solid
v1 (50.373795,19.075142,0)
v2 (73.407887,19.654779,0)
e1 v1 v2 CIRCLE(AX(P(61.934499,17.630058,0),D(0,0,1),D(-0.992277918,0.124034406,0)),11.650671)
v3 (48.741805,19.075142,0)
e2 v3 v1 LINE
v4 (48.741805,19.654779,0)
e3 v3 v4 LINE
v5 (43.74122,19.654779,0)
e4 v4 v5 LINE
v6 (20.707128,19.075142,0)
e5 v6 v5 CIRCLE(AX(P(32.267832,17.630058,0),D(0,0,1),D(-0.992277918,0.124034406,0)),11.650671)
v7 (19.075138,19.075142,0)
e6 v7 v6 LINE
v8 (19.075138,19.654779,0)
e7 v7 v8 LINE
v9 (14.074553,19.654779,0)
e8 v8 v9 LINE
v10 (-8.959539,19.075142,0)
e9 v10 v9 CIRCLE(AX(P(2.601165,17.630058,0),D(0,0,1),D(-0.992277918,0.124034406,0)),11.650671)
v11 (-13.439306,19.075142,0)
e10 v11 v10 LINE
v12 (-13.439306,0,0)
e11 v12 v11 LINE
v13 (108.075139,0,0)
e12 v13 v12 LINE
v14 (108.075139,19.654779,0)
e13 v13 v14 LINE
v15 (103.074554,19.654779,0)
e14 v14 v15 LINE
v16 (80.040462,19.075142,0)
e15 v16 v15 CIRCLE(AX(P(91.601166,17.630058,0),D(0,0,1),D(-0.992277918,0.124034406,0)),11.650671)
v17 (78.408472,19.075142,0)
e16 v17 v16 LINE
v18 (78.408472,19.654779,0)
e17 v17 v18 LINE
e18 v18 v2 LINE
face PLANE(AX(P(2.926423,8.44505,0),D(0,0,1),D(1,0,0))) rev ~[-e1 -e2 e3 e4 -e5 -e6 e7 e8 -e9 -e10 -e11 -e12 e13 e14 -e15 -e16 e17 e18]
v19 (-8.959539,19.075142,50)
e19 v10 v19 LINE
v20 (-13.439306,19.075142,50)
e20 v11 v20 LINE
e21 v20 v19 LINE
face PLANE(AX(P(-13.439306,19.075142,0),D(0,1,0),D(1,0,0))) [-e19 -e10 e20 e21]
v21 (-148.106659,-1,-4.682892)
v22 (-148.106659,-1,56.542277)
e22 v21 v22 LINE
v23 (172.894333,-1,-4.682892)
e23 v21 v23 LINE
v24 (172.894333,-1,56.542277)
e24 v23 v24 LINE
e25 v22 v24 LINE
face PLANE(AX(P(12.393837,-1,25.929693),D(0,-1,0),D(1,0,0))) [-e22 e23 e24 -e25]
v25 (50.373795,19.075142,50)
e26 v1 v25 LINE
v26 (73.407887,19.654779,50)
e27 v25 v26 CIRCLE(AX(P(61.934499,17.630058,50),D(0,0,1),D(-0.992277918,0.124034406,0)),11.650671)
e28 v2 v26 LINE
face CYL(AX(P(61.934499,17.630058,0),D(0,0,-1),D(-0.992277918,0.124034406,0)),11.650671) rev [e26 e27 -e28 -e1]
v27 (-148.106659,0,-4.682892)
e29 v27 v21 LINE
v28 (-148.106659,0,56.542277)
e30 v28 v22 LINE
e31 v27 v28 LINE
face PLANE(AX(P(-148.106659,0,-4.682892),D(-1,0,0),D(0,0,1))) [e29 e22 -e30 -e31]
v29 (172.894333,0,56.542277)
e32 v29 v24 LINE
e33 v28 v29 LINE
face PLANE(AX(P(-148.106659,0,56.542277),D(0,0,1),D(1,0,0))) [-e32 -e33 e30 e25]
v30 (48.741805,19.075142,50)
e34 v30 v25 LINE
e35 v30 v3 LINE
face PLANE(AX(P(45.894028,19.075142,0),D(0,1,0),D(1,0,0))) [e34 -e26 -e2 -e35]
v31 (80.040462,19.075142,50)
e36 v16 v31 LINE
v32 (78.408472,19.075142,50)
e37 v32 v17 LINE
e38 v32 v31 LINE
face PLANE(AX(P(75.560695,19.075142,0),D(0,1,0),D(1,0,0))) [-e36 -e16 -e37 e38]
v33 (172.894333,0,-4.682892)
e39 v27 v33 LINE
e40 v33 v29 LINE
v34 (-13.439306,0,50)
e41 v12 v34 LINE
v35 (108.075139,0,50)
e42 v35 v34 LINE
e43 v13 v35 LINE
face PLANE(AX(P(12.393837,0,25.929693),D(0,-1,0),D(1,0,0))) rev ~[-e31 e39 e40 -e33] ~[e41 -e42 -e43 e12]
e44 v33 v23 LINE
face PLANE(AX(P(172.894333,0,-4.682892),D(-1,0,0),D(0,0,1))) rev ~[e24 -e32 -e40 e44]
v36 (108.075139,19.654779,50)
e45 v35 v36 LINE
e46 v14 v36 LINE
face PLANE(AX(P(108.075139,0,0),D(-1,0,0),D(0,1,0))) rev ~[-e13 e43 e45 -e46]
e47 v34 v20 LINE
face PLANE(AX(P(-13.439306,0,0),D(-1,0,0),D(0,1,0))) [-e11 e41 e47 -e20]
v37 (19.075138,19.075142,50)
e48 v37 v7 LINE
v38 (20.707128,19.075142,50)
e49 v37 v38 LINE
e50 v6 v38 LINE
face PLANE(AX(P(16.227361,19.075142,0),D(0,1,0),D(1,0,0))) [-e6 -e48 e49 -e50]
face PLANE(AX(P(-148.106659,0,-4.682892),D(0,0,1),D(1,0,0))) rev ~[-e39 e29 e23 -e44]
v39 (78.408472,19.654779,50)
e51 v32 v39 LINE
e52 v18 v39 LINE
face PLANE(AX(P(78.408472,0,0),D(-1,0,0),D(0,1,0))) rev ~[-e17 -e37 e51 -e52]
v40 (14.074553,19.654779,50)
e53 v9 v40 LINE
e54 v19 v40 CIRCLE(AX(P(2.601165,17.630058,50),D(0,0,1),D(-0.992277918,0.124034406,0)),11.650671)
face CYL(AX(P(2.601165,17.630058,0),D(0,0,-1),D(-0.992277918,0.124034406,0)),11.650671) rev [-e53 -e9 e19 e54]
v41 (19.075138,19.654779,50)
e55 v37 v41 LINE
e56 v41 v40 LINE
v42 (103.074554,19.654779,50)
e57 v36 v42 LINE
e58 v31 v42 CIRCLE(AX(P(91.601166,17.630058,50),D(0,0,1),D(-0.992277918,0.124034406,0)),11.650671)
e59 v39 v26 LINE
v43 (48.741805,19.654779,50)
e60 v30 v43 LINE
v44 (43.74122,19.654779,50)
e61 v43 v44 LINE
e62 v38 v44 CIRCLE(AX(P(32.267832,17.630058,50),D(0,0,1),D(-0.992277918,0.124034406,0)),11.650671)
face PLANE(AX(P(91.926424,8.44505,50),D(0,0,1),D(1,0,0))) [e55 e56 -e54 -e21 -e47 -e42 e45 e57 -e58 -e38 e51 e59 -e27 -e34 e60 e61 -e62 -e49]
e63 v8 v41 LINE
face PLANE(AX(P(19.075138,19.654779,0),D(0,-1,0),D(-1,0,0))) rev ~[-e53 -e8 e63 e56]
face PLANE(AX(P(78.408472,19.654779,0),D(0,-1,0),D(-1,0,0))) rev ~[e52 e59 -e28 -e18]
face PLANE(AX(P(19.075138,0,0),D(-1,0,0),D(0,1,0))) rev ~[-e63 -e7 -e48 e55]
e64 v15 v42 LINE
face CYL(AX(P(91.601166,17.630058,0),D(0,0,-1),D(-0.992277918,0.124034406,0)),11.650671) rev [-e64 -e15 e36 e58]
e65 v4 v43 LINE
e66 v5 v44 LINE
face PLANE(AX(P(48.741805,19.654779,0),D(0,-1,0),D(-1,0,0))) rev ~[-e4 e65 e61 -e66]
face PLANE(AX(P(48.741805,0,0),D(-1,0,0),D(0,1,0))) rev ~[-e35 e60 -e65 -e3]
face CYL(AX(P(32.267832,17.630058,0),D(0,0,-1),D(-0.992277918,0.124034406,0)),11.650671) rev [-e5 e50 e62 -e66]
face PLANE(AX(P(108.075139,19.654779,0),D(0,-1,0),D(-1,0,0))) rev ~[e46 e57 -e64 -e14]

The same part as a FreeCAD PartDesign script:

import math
import FreeCAD as App
import Part
import Sketcher
Q = App.Units.Quantity

doc = App.newDocument("Part")
body = doc.addObject("PartDesign::Body", "Body")

# Sketch on XZ plane
sketch1 = body.newObject("Sketcher::SketchObject", "Sketch")
sketch1.AttachmentSupport = (doc.getObject("XZ_Plane"), [""])
sketch1.MapMode = "FlatFace"
sketch1.addGeometry([
    Part.LineSegment(App.Vector(-148.106659, 56.542277, 0), App.Vector(-148.106659, -4.682892, 0)),
    Part.LineSegment(App.Vector(-148.106659, -4.682892, 0), App.Vector(172.894333, -4.682892, 0)),
    Part.LineSegment(App.Vector(172.894333, -4.682892, 0), App.Vector(172.894333, 56.542277, 0)),
    Part.LineSegment(App.Vector(172.894333, 56.542277, 0), App.Vector(-148.106659, 56.542277, 0)),
], False)
sketch1.addConstraint([
    Sketcher.Constraint("Coincident", 0, 2, 1, 1),
    Sketcher.Constraint("Coincident", 1, 2, 2, 1),
    Sketcher.Constraint("Coincident", 2, 2, 3, 1),
    Sketcher.Constraint("Coincident", 3, 2, 0, 1),
    Sketcher.Constraint("Vertical", 0),
    Sketcher.Constraint("Horizontal", 1),
    Sketcher.Constraint("Vertical", 2),
    Sketcher.Constraint("Horizontal", 3),
    Sketcher.Constraint("DistanceX", 1, 1, 1, 2, Q("321.000992 mm")),
    Sketcher.Constraint("DistanceY", 0, 2, 0, 1, Q("61.225169 mm")),
    Sketcher.Constraint("DistanceX", 0, 2, -1, 1, Q("148.106659 mm")),
    Sketcher.Constraint("DistanceY", 0, 2, -1, 1, Q("4.682892 mm")),
])
pad1 = body.newObject("PartDesign::Pad", "Pad")
pad1.Profile = sketch1
pad1.Length = 1

# Sketch on XY plane
sketch2 = body.newObject("Sketcher::SketchObject", "Sketch001")
sketch2.AttachmentSupport = (doc.getObject("XY_Plane"), [""])
sketch2.MapMode = "FlatFace"
sketch2.addGeometry([
    Part.LineSegment(App.Vector(-13.439306, 0, 0), App.Vector(19.075138, 0, 0)),  # 0
    Part.LineSegment(App.Vector(19.075138, 0, 0), App.Vector(19.075138, 19.654779, 0)),  # 1
    Part.LineSegment(App.Vector(19.075138, 19.654779, 0), App.Vector(14.074553, 19.654779, 0)),  # 2
    Part.ArcOfCircle(Part.Circle(App.Vector(2.601165, 17.630058, 0), App.Vector(0, 0, 1), 11.650671), math.radians(172.875003), math.radians(370.008006)),  # 3
    Part.LineSegment(App.Vector(-8.959539, 19.075142, 0), App.Vector(-13.439306, 19.075142, 0)),  # 4
    Part.LineSegment(App.Vector(-13.439306, 19.075142, 0), App.Vector(-13.439306, 0, 0)),  # 5
], False)
sketch2.addConstraint([
    Sketcher.Constraint("Coincident", 0, 2, 1, 1),
    Sketcher.Constraint("Coincident", 1, 2, 2, 1),
    Sketcher.Constraint("Coincident", 2, 2, 3, 2),
    Sketcher.Constraint("Coincident", 3, 1, 4, 1),
    Sketcher.Constraint("Coincident", 4, 2, 5, 1),
    Sketcher.Constraint("Coincident", 5, 2, 0, 1),
    Sketcher.Constraint("Horizontal", 0),
    Sketcher.Constraint("Vertical", 1),
    Sketcher.Constraint("Horizontal", 2),
    Sketcher.Constraint("Horizontal", 4),
    Sketcher.Constraint("Vertical", 5),
    Sketcher.Constraint("PointOnObject", 0, 2, -1),
    Sketcher.Constraint("Radius", 3, Q("11.650671 mm")),
    Sketcher.Constraint("DistanceY", 1, 1, 1, 2, Q("19.654779 mm")),
    Sketcher.Constraint("DistanceY", 5, 2, 5, 1, Q("19.075142 mm")),
    Sketcher.Constraint("DistanceX", 0, 1, 0, 2, Q("32.514444 mm")),
    Sketcher.Constraint("DistanceX", 2, 2, 2, 1, Q("5.000585 mm")),
    Sketcher.Constraint("DistanceX", 4, 2, 4, 1, Q("4.479767 mm")),
    Sketcher.Constraint("DistanceX", 3, 1, -1, 1, Q("8.959539 mm")),
])
pad2 = body.newObject("PartDesign::Pad", "Pad001")
pad2.Profile = sketch2
pad2.Length = 50
doc.recompute()

linearpattern = body.newObject("PartDesign::LinearPattern", "LinearPattern")
linearpattern.Originals = [pad2]
linearpattern.Direction = (doc.getObject("X_Axis"), [""])
linearpattern.Mode = "offset"
linearpattern.Offset = 29.666667
linearpattern.Occurrences = 4
body.Tip = linearpattern

doc.recompute()
